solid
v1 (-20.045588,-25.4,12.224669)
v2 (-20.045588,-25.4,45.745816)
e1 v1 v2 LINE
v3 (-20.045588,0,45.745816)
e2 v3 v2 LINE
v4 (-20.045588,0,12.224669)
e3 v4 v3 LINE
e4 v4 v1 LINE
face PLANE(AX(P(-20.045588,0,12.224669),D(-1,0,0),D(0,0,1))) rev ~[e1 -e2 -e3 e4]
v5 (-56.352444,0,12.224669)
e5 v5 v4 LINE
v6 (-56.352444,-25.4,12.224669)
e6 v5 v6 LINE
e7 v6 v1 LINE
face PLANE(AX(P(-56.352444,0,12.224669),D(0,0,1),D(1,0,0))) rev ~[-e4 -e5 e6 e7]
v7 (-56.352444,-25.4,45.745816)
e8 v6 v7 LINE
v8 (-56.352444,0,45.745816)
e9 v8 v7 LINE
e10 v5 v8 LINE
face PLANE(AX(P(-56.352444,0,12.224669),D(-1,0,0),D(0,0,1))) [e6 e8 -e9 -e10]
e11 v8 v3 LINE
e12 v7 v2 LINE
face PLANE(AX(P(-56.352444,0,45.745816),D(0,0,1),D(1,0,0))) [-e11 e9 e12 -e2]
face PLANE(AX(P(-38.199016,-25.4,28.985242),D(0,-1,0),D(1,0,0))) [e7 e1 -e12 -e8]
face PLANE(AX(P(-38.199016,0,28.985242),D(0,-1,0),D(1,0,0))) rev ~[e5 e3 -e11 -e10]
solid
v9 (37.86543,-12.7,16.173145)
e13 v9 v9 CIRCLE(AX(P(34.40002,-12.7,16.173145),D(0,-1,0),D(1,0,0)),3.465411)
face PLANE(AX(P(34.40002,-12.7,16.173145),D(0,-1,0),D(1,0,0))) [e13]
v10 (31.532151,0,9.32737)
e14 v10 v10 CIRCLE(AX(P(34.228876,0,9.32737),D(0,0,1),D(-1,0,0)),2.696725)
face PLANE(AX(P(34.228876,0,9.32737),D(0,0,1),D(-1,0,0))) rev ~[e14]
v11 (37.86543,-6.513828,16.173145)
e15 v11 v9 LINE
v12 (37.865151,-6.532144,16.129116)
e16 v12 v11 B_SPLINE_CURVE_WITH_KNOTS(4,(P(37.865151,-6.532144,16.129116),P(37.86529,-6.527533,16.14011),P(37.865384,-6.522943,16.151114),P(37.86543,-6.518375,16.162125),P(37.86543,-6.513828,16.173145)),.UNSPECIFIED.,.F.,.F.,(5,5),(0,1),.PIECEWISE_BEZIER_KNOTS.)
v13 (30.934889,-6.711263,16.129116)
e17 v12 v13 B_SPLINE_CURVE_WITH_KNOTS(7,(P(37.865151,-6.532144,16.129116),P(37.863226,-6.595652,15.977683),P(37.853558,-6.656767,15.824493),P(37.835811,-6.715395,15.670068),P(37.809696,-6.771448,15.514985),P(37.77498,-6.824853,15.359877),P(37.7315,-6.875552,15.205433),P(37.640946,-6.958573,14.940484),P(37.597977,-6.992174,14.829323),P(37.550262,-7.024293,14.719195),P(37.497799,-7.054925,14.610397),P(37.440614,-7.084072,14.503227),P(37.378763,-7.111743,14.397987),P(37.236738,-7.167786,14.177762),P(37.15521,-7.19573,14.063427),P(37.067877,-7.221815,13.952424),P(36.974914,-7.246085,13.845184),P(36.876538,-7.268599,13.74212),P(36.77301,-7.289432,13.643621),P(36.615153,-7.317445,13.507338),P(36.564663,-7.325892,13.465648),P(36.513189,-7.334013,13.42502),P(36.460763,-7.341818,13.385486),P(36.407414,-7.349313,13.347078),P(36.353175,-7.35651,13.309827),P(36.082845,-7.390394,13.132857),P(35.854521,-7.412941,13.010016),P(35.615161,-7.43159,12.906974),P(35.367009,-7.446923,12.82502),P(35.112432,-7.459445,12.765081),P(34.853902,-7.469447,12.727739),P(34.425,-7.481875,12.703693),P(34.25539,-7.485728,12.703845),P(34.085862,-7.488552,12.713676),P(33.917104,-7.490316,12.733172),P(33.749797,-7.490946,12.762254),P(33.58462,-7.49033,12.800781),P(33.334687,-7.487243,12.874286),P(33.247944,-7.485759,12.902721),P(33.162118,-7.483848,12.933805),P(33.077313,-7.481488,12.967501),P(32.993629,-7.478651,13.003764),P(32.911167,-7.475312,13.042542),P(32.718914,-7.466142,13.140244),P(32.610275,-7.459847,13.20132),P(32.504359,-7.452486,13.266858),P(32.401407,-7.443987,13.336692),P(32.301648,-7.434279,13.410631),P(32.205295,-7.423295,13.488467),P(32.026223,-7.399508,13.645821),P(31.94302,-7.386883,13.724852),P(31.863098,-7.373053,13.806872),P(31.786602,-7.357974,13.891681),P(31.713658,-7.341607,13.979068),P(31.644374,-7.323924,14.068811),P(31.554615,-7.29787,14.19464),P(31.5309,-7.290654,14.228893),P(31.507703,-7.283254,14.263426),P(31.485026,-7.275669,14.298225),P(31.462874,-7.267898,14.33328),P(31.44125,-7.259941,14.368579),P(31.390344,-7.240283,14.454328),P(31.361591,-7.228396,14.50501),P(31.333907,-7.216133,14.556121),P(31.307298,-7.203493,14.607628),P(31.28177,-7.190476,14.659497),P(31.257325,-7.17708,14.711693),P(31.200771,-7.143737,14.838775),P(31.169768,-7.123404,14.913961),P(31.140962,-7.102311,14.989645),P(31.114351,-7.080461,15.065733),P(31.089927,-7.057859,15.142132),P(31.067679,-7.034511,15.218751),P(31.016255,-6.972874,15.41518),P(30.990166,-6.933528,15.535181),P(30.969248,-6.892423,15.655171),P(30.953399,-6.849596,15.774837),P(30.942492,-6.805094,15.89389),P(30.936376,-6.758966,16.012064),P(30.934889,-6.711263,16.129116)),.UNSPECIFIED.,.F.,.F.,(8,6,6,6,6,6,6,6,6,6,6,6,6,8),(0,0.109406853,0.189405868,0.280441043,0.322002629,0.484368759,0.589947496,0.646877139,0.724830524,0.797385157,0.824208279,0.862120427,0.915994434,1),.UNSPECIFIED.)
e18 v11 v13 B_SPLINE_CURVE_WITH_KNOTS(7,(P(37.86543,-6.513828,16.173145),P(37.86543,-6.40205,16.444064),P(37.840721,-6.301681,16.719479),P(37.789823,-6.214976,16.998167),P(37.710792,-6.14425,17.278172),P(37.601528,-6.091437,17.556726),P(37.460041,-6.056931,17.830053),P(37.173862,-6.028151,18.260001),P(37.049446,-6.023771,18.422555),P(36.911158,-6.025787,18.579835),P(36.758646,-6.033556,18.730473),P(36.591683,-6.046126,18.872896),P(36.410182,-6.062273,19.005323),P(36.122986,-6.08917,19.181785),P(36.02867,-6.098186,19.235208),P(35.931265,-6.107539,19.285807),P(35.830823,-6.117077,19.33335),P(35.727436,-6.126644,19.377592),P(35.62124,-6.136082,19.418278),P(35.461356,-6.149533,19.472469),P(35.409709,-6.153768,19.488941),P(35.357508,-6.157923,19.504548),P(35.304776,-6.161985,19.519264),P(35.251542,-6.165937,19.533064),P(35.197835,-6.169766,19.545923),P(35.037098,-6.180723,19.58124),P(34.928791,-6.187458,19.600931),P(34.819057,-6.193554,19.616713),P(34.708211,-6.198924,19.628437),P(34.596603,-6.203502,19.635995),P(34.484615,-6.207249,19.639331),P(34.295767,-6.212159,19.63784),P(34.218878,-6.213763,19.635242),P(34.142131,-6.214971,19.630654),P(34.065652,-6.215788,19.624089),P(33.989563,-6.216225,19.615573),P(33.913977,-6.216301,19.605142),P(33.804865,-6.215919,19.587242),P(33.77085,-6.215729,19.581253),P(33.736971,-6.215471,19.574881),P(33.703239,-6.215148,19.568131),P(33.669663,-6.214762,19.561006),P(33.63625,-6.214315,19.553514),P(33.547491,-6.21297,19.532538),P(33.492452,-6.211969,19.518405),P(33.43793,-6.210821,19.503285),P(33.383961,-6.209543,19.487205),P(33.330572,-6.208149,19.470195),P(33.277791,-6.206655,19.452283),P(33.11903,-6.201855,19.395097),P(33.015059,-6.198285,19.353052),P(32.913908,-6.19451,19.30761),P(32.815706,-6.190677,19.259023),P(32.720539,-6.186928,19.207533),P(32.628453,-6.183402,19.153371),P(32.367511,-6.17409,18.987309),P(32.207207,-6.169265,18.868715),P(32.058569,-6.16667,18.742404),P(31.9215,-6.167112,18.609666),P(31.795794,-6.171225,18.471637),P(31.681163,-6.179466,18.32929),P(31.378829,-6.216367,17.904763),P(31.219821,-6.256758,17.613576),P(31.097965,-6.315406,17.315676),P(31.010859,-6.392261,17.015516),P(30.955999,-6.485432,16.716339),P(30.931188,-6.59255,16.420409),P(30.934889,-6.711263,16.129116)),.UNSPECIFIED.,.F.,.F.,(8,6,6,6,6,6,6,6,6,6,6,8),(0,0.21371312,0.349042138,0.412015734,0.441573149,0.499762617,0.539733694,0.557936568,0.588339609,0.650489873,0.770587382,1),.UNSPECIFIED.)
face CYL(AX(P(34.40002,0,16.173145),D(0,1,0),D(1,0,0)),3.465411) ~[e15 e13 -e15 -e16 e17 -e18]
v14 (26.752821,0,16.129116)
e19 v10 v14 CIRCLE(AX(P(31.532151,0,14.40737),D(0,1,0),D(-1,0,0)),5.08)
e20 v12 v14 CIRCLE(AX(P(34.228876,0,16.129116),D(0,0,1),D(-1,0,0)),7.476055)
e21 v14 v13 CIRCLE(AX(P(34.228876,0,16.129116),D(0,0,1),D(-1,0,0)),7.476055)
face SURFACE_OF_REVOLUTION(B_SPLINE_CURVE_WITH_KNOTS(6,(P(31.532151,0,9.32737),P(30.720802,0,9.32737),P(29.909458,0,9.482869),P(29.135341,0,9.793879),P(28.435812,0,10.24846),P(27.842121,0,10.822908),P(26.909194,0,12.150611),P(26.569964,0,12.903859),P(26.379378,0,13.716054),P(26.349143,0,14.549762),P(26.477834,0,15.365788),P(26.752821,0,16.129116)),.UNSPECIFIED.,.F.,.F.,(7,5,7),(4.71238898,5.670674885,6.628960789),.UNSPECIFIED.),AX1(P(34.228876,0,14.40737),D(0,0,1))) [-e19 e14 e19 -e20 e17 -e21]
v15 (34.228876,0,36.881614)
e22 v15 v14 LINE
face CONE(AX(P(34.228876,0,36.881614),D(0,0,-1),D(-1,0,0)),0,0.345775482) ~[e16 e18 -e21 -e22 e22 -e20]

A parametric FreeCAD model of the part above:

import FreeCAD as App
import Part
import Sketcher
from FreeCAD import Vector
Q = App.Units.Quantity


def edges_at(feature, points):
    """Names of the edges that pass closest to the given points."""
    edges = feature.Shape.Edges
    near = lambda p: min(range(len(edges)), key=lambda i: edges[i].distToShape(Part.Vertex(*p))[0])
    return sorted({f"Edge{near(p) + 1}" for p in points})

doc = App.newDocument("Part")
body = doc.addObject("PartDesign::Body", "Body")

# Sketch on XZ plane
sketch1 = body.newObject("Sketcher::SketchObject", "Sketch")
sketch1.AttachmentSupport = (doc.getObject("XZ_Plane"), [""])
sketch1.MapMode = "FlatFace"
sketch1.addGeometry(Part.LineSegment(Vector(24.302503, 9.32737, 0), Vector(34.228876, 9.32737, 0)), False)
sketch1.addGeometry(Part.LineSegment(Vector(34.228876, 9.32737, 0), Vector(34.228876, 36.881614, 0)), False)
sketch1.addGeometry(Part.LineSegment(Vector(34.228876, 36.881614, 0), Vector(24.302503, 9.32737, 0)), False)
sketch1.addGeometry(Part.LineSegment(Vector(34.228876, 9.32737, 0), Vector(34.228876, 36.881614, 0)), True)  # axis
sketch1.addConstraint(Sketcher.Constraint("Coincident", 0, 2, 1, 1))
sketch1.addConstraint(Sketcher.Constraint("Coincident", 1, 2, 2, 1))
sketch1.addConstraint(Sketcher.Constraint("Coincident", 2, 2, 0, 1))
sketch1.addConstraint(Sketcher.Constraint("Horizontal", 0))
sketch1.addConstraint(Sketcher.Constraint("Vertical", 1))
sketch1.addConstraint(Sketcher.Constraint("Vertical", 3))
sketch1.addConstraint(Sketcher.Constraint("Coincident", 3, 1, 0, 2))
sketch1.addConstraint(Sketcher.Constraint("Equal", 1, 3))
sketch1.addConstraint(Sketcher.Constraint("Distance", 2, Q("29.287699 mm")))
sketch1.addConstraint(Sketcher.Constraint("DistanceX", 0, 1, 0, 2, Q("9.926373 mm")))
sketch1.addConstraint(Sketcher.Constraint("DistanceY", -1, 1, 0, 2, Q("9.32737 mm")))
sketch1.addConstraint(Sketcher.Constraint("DistanceX", -1, 1, 0, 2, Q("34.228876 mm")))
revolution = body.newObject("PartDesign::Revolution", "Revolution")
revolution.Profile = sketch1
revolution.ReferenceAxis = (sketch1, ["Axis0"])
revolution.Angle = 360
doc.recompute()

fillet = body.newObject("PartDesign::Fillet", "Fillet")
fillet.Base = (revolution, edges_at(revolution, [(44.155, 0, 9.327)]))
fillet.Radius = Q("0.2 in")

# Sketch on XZ plane
sketch2 = body.newObject("Sketcher::SketchObject", "Sketch001")
sketch2.AttachmentSupport = (doc.getObject("XZ_Plane"), [""])
sketch2.MapMode = "FlatFace"
sketch2.addGeometry(Part.Circle(Vector(34.40002, 16.173145, 0), Vector(0, 0, 1), 3.465411), False)
sketch2.addConstraint(Sketcher.Constraint("Diameter", 0, Q("6.930821 mm")))
sketch2.addConstraint(Sketcher.Constraint("DistanceX", -1, 1, 0, 3, Q("34.40002 mm")))
sketch2.addConstraint(Sketcher.Constraint("DistanceY", -1, 1, 0, 3, Q("16.173145 mm")))
pad1 = body.newObject("PartDesign::Pad", "Pad")
pad1.Profile = sketch2
pad1.Length = Q("0.5 in")
body2 = doc.addObject("PartDesign::Body", "Body001")

# Sketch on XZ plane
sketch3 = body2.newObject("Sketcher::SketchObject", "Sketch002")
sketch3.AttachmentSupport = (doc.getObject("XZ_Plane001"), [""])
sketch3.MapMode = "FlatFace"
sketch3.addGeometry(Part.LineSegment(Vector(-56.352444, 45.745816, 0), Vector(-56.352444, 12.224669, 0)), False)
sketch3.addGeometry(Part.LineSegment(Vector(-56.352444, 12.224669, 0), Vector(-20.045588, 12.224669, 0)), False)
sketch3.addGeometry(Part.LineSegment(Vector(-20.045588, 12.224669, 0), Vector(-20.045588, 45.745816, 0)), False)
sketch3.addGeometry(Part.LineSegment(Vector(-20.045588, 45.745816, 0), Vector(-56.352444, 45.745816, 0)), False)
sketch3.addConstraint(Sketcher.Constraint("Coincident", 0, 2, 1, 1))
sketch3.addConstraint(Sketcher.Constraint("Coincident", 1, 2, 2, 1))
sketch3.addConstraint(Sketcher.Constraint("Coincident", 2, 2, 3, 1))
sketch3.addConstraint(Sketcher.Constraint("Coincident", 3, 2, 0, 1))
sketch3.addConstraint(Sketcher.Constraint("Vertical", 0))
sketch3.addConstraint(Sketcher.Constraint("Horizontal", 1))
sketch3.addConstraint(Sketcher.Constraint("Vertical", 2))
sketch3.addConstraint(Sketcher.Constraint("Horizontal", 3))
sketch3.addConstraint(Sketcher.Constraint("DistanceX", 0, 2, -1, 1, Q("2.2186002 in")))
sketch3.addConstraint(Sketcher.Constraint("DistanceX", 1, 1, 1, 2, Q("36.306856 mm")))
sketch3.addConstraint(Sketcher.Constraint("DistanceY", 0, 2, 0, 1, Q("33.521147 mm")))
sketch3.addConstraint(Sketcher.Constraint("DistanceY", -1, 1, 0, 2, Q("12.224669 mm")))
pad2 = body2.newObject("PartDesign::Pad", "Pad001")
pad2.Profile = sketch3
pad2.Length = Q("1 in")

doc.recompute()
